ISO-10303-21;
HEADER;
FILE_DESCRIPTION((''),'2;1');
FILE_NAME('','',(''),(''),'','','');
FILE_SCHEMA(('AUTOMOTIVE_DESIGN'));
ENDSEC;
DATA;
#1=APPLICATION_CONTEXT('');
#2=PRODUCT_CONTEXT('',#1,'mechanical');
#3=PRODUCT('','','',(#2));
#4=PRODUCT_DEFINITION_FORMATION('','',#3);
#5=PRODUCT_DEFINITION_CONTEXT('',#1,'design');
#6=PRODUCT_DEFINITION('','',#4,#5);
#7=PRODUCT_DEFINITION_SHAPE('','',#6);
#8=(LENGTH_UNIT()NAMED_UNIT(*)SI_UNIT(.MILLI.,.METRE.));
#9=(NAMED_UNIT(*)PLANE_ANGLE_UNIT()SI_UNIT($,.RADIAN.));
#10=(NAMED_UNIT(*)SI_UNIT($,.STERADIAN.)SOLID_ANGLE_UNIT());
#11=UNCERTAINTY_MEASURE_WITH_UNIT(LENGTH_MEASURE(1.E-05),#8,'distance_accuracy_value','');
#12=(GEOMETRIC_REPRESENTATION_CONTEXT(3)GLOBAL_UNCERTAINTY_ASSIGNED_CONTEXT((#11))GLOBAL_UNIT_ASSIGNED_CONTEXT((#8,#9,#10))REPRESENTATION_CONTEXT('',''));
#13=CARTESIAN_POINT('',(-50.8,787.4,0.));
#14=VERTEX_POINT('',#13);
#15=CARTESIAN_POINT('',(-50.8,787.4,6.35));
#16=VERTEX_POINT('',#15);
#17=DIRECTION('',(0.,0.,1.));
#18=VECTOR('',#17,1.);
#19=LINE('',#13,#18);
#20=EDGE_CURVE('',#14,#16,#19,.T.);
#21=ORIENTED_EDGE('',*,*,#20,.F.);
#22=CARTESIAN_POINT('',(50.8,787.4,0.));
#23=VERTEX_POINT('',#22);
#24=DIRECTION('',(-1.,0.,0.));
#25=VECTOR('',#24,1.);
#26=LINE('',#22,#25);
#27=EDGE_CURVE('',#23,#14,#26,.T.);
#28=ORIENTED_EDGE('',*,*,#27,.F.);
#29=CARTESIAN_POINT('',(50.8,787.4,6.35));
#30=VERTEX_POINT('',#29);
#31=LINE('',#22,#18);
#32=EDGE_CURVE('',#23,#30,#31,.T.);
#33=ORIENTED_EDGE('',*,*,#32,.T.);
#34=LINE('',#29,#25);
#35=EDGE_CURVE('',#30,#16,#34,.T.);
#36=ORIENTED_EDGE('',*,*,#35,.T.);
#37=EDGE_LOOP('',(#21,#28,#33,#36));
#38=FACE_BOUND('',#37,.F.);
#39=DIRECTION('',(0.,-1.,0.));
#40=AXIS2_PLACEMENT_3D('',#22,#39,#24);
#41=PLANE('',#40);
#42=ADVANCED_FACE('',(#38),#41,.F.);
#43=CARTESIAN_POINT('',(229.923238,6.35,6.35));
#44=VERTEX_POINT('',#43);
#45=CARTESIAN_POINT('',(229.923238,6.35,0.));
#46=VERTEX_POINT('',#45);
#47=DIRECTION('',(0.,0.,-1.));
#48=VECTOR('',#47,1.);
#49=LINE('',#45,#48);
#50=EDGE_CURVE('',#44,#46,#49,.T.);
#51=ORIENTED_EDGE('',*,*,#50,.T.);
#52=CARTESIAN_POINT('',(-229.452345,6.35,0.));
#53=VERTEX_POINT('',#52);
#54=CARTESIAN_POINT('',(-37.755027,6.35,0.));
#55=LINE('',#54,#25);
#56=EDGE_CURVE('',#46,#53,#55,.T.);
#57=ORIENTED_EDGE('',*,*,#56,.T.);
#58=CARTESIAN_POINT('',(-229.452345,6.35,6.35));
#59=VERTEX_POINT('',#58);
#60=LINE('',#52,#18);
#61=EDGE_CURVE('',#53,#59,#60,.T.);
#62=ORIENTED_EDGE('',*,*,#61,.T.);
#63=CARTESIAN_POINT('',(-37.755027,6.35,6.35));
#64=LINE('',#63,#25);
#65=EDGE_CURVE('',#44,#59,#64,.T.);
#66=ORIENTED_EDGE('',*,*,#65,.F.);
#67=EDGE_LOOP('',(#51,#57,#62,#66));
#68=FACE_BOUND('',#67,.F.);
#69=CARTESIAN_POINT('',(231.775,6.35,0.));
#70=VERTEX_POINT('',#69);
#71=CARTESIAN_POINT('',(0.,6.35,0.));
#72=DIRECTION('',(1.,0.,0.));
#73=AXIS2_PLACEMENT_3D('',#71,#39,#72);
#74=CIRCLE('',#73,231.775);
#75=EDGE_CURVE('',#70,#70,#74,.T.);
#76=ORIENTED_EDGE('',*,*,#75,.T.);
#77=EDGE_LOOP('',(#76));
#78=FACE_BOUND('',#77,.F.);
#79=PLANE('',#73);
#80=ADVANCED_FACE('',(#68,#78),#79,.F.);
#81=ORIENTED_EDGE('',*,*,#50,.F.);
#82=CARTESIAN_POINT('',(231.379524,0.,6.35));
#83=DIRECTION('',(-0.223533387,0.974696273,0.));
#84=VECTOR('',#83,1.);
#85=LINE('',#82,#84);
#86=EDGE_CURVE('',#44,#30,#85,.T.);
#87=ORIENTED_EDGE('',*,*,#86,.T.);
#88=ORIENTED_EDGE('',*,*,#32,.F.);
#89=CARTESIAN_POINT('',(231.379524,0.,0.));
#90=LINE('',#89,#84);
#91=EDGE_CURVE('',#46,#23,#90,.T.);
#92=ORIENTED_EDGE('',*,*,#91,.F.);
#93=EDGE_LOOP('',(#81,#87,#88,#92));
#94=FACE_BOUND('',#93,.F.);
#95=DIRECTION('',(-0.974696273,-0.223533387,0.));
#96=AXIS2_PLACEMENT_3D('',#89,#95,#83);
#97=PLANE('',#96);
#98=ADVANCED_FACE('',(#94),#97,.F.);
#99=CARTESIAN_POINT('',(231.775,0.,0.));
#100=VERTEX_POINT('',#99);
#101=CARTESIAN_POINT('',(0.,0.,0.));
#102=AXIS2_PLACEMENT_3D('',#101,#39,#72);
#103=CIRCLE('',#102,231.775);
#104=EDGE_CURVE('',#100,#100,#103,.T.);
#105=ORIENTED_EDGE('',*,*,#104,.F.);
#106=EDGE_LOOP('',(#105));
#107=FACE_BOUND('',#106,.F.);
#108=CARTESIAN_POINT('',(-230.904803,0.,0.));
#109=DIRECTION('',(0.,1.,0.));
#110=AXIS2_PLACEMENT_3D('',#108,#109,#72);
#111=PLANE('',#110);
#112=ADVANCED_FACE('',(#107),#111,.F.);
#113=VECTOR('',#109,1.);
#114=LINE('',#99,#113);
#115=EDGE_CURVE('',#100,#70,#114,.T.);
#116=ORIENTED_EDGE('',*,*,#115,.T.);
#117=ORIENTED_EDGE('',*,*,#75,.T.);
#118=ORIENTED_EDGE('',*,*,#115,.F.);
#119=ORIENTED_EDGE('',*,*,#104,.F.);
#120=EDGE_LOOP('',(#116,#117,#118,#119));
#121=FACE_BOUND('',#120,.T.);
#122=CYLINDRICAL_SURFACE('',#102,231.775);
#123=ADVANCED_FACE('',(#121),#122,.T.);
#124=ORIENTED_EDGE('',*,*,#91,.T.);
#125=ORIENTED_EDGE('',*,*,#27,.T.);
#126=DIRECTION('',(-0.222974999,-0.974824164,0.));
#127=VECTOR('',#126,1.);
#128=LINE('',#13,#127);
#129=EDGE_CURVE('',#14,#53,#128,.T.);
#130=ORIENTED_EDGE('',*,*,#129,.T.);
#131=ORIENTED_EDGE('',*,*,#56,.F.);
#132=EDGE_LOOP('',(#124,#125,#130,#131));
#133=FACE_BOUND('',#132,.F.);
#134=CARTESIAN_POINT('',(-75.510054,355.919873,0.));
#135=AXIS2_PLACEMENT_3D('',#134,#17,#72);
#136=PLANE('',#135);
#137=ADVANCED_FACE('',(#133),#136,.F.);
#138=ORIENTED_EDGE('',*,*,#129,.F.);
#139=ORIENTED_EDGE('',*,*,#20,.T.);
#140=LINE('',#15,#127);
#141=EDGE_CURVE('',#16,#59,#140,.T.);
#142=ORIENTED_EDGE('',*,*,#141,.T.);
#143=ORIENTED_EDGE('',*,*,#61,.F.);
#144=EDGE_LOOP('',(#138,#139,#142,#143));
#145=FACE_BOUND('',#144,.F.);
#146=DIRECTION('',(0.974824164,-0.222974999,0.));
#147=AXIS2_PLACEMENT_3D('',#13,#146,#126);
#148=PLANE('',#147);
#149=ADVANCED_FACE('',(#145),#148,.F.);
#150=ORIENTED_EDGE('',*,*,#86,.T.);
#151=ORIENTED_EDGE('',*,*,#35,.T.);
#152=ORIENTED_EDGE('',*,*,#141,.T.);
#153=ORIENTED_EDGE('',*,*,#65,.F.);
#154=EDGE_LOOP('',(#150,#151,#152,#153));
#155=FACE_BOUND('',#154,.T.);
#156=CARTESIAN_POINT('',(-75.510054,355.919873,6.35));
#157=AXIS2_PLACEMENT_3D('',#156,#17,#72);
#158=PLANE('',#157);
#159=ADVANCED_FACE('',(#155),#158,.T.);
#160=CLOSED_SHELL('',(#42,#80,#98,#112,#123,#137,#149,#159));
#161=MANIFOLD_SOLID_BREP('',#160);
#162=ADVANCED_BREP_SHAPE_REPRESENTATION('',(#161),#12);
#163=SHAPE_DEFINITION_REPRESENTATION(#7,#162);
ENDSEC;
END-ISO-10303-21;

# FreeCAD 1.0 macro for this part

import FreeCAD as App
import Part
import Sketcher
from FreeCAD import Vector
Q = App.Units.Quantity

doc = App.newDocument("Part")
body = doc.addObject("PartDesign::Body", "Body")

sketch1 = body.newObject("Sketcher::SketchObject", "Sketch")
sketch1.AttachmentSupport = (doc.getObject("XZ_Plane"), [""])
sketch1.MapMode = "FlatFace"
sketch1.addGeometry(Part.Circle(Vector(0, 0, 0), Vector(0, 0, 1), 231.775), False)
sketch1.addConstraint(Sketcher.Constraint("Coincident", 0, 3, -1, 1))
sketch1.addConstraint(Sketcher.Constraint("Diameter", 0, Q("18.25 in")))
pad1 = body.newObject("PartDesign::Pad", "Pad")
pad1.Profile = sketch1
pad1.Length = Q("0.25 in")
pad1.Reversed = True

sketch2 = body.newObject("Sketcher::SketchObject", "Sketch001")
sketch2.AttachmentSupport = (doc.getObject("XY_Plane"), [""])
sketch2.MapMode = "FlatFace"
sketch2.addGeometry(Part.LineSegment(Vector(-230.904803, 0, 0), Vector(231.379524, 0, 0)), False)
sketch2.addGeometry(Part.LineSegment(Vector(231.379524, 0, 0), Vector(50.8, 787.4, 0)), False)
sketch2.addGeometry(Part.LineSegment(Vector(50.8, 787.4, 0), Vector(-50.8, 787.4, 0)), False)
sketch2.addGeometry(Part.LineSegment(Vector(-50.8, 787.4, 0), Vector(-230.904803, 0, 0)), False)
sketch2.addConstraint(Sketcher.Constraint("Coincident", 0, 2, 1, 1))
sketch2.addConstraint(Sketcher.Constraint("Coincident", 1, 2, 2, 1))
sketch2.addConstraint(Sketcher.Constraint("Coincident", 2, 2, 3, 1))
sketch2.addConstraint(Sketcher.Constraint("Coincident", 3, 2, 0, 1))
sketch2.addConstraint(Sketcher.Constraint("Horizontal", 0))
sketch2.addConstraint(Sketcher.Constraint("Horizontal", 2))
sketch2.addConstraint(Sketcher.Constraint("PointOnObject", 0, 2, -1))
sketch2.addConstraint(Sketcher.Constraint("DistanceX", 2, 2, 2, 1, Q("4 in")))
sketch2.addConstraint(Sketcher.Constraint("DistanceX", -1, 1, 1, 2, Q("2 in")))
sketch2.addConstraint(Sketcher.Constraint("DistanceY", -1, 1, 1, 2, Q("31 in")))
sketch2.addConstraint(Sketcher.Constraint("Distance", 1, Q("807.841398 mm")))
sketch2.addConstraint(Sketcher.Constraint("DistanceX", 0, 1, 0, 2, Q("462.284327 mm")))
pad2 = body.newObject("PartDesign::Pad", "Pad001")
pad2.Profile = sketch2
pad2.Length = Q("0.25 in")

doc.recompute()
